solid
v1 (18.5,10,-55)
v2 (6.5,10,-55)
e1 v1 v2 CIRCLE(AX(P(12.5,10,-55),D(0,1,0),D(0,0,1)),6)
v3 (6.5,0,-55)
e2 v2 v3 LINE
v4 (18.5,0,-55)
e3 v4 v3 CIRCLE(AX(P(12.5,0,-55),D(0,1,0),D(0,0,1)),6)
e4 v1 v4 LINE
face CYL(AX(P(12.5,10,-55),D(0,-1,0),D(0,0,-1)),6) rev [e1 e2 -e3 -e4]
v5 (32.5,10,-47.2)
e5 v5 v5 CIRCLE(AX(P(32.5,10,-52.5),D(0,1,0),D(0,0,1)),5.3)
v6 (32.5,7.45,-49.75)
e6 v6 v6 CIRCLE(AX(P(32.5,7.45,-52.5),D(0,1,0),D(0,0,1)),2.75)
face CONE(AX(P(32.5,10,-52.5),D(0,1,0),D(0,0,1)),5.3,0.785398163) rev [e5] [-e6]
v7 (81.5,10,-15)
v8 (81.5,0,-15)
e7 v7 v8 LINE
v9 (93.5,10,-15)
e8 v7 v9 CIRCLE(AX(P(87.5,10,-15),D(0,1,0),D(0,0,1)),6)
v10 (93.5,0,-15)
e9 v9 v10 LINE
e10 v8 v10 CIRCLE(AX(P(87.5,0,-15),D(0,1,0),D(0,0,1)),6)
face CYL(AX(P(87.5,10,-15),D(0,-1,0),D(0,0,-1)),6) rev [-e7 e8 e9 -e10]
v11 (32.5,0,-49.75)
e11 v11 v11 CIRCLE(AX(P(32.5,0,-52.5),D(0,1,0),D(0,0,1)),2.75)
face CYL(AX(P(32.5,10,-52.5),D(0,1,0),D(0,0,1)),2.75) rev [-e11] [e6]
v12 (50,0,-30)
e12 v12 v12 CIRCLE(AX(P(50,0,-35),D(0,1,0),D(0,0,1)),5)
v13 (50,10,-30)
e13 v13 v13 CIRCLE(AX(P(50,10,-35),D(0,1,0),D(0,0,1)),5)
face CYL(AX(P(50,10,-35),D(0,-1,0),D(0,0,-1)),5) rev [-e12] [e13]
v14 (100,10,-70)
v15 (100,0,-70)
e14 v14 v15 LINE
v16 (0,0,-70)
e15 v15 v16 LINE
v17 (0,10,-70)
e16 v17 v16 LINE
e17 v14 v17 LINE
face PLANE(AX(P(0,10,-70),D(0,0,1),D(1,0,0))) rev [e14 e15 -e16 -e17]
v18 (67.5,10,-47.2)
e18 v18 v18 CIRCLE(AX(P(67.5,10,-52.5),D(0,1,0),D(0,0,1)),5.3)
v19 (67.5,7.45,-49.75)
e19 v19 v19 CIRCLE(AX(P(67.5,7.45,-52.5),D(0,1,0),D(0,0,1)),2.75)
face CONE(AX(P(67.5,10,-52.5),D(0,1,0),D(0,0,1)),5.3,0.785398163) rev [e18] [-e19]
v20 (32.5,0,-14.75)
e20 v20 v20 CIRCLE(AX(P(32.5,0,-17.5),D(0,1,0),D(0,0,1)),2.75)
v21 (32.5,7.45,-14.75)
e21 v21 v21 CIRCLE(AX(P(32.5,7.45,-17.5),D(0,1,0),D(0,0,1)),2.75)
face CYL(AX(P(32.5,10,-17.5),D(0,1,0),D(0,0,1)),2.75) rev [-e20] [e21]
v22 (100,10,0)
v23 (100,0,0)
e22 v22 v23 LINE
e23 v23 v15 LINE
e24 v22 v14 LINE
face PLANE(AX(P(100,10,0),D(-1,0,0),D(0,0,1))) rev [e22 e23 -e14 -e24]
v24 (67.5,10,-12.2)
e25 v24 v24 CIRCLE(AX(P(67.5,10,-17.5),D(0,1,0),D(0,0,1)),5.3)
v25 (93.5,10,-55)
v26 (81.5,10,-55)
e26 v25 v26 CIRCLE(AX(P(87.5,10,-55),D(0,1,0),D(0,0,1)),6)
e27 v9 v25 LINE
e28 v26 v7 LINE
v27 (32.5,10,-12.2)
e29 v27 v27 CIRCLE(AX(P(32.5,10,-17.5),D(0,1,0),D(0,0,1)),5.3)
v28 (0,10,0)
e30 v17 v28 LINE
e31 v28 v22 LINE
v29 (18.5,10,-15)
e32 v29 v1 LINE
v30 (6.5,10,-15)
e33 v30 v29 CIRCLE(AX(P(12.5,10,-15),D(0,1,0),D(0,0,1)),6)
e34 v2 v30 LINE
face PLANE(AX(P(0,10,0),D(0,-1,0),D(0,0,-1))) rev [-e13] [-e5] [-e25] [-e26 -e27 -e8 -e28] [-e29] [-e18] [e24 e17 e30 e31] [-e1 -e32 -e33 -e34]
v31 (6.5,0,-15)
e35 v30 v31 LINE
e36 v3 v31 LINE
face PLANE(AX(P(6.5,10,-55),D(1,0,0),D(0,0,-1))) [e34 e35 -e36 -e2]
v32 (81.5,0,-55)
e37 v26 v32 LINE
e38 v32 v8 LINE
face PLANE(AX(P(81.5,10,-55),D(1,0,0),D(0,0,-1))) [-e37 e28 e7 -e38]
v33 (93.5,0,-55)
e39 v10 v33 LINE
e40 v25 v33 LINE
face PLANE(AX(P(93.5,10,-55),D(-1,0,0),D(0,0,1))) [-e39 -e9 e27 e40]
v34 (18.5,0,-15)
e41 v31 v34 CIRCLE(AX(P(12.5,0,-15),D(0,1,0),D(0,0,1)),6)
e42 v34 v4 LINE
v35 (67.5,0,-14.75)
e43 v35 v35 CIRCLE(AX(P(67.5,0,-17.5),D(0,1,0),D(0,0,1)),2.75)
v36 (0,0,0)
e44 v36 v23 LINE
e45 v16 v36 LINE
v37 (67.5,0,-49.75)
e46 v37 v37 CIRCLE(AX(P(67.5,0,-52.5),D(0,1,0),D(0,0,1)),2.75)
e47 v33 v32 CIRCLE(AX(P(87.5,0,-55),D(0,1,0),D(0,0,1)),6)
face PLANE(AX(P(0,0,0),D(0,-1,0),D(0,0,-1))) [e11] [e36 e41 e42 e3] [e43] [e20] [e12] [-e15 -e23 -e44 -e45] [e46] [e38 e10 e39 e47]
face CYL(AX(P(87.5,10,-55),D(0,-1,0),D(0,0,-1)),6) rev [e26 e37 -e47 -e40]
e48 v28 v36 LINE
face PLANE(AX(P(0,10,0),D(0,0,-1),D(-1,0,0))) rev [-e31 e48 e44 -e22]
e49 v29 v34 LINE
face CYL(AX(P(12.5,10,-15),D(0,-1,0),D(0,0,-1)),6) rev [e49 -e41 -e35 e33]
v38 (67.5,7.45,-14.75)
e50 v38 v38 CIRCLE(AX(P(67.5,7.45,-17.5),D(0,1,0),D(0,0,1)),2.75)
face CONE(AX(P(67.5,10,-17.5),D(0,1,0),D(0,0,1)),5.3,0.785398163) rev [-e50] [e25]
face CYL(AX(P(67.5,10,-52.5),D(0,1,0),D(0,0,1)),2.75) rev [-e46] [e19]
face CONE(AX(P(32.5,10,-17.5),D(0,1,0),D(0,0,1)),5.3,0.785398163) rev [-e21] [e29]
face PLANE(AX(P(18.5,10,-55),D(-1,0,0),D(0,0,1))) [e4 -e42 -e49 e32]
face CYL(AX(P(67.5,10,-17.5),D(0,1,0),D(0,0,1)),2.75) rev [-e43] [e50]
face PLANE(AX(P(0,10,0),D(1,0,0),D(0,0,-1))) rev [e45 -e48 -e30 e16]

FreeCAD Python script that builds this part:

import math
import FreeCAD as App
import Part
import Sketcher
Q = App.Units.Quantity

doc = App.newDocument("Part")
body = doc.addObject("PartDesign::Body", "Body")

# Sketch on XZ plane
sketch1 = body.newObject("Sketcher::SketchObject", "Sketch")
sketch1.AttachmentSupport = (doc.getObject("XZ_Plane"), [""])
sketch1.MapMode = "FlatFace"
sketch1.addGeometry(Part.LineSegment(App.Vector(0, -70, 0), App.Vector(0, 0, 0)), False)
sketch1.addGeometry(Part.LineSegment(App.Vector(0, 0, 0), App.Vector(100, 0, 0)), False)
sketch1.addGeometry(Part.LineSegment(App.Vector(100, 0, 0), App.Vector(100, -70, 0)), False)
sketch1.addGeometry(Part.LineSegment(App.Vector(100, -70, 0), App.Vector(0, -70, 0)), False)
sketch1.addGeometry(Part.ArcOfCircle(Part.Circle(App.Vector(12, -55, 0), App.Vector(0, 0, 1), 6), math.radians(180), math.radians(360)), False)
sketch1.addGeometry(Part.LineSegment(App.Vector(18, -55, 0), App.Vector(18, -15, 0)), False)
sketch1.addGeometry(Part.ArcOfCircle(Part.Circle(App.Vector(12, -15, 0), App.Vector(0, 0, 1), 6), math.radians(0), math.radians(180)), False)
sketch1.addGeometry(Part.LineSegment(App.Vector(6, -15, 0), App.Vector(6, -55, 0)), False)
sketch1.addGeometry(Part.Circle(App.Vector(50, -35, 0), App.Vector(0, 0, 1), 5), False)
sketch1.addGeometry(Part.ArcOfCircle(Part.Circle(App.Vector(88, -55, 0), App.Vector(0, 0, 1), 6), math.radians(180), math.radians(360)), False)
sketch1.addGeometry(Part.LineSegment(App.Vector(94, -55, 0), App.Vector(94, -15, 0)), False)
sketch1.addGeometry(Part.ArcOfCircle(Part.Circle(App.Vector(88, -15, 0), App.Vector(0, 0, 1), 6), math.radians(0), math.radians(180)), False)
sketch1.addGeometry(Part.LineSegment(App.Vector(82, -15, 0), App.Vector(82, -55, 0)), False)
sketch1.addConstraint(Sketcher.Constraint("Coincident", 0, 2, 1, 1))
sketch1.addConstraint(Sketcher.Constraint("Coincident", 1, 2, 2, 1))
sketch1.addConstraint(Sketcher.Constraint("Coincident", 2, 2, 3, 1))
sketch1.addConstraint(Sketcher.Constraint("Coincident", 3, 2, 0, 1))
sketch1.addConstraint(Sketcher.Constraint("Tangent", 4, 2, 5, 1))
sketch1.addConstraint(Sketcher.Constraint("Tangent", 5, 2, 6, 1))
sketch1.addConstraint(Sketcher.Constraint("Tangent", 6, 2, 7, 1))
sketch1.addConstraint(Sketcher.Constraint("Tangent", 7, 2, 4, 1))
sketch1.addConstraint(Sketcher.Constraint("Tangent", 9, 2, 10, 1))
sketch1.addConstraint(Sketcher.Constraint("Tangent", 10, 2, 11, 1))
sketch1.addConstraint(Sketcher.Constraint("Tangent", 11, 2, 12, 1))
sketch1.addConstraint(Sketcher.Constraint("Tangent", 12, 2, 9, 1))
sketch1.addConstraint(Sketcher.Constraint("Vertical", 0))
sketch1.addConstraint(Sketcher.Constraint("Horizontal", 1))
sketch1.addConstraint(Sketcher.Constraint("Vertical", 2))
sketch1.addConstraint(Sketcher.Constraint("Horizontal", 3))
sketch1.addConstraint(Sketcher.Constraint("Vertical", 5))
sketch1.addConstraint(Sketcher.Constraint("Vertical", 7))
sketch1.addConstraint(Sketcher.Constraint("Vertical", 10))
sketch1.addConstraint(Sketcher.Constraint("Vertical", 12))
sketch1.addConstraint(Sketcher.Constraint("Coincident", 0, 2, -1, 1))
sketch1.addConstraint(Sketcher.Constraint("Equal", 6, 9))
sketch1.addConstraint(Sketcher.Constraint("Horizontal", 4, 3, 9, 3))
sketch1.addConstraint(Sketcher.Constraint("Horizontal", 6, 3, 11, 3))
sketch1.addConstraint(Sketcher.Constraint("Diameter", 8, Q("10 mm")))
sketch1.addConstraint(Sketcher.Constraint("Radius", 4, Q("6 mm")))
sketch1.addConstraint(Sketcher.Constraint("DistanceX", 1, 1, 1, 2, Q("100 mm")))
sketch1.addConstraint(Sketcher.Constraint("DistanceY", 0, 1, 0, 2, Q("70 mm")))
sketch1.addConstraint(Sketcher.Constraint("DistanceY", 5, 1, 5, 2, Q("40 mm")))
sketch1.addConstraint(Sketcher.Constraint("DistanceY", 4, 3, -1, 1, Q("55 mm")))
sketch1.addConstraint(Sketcher.Constraint("DistanceX", -1, 1, 8, 3, Q("50 mm")))
sketch1.addConstraint(Sketcher.Constraint("DistanceY", 8, 3, -1, 1, Q("35 mm")))
sketch1.addConstraint(Sketcher.Constraint("DistanceX", 4, 3, 9, 3, Q("75 mm")))
sketch1.addConstraint(Sketcher.Constraint("DistanceX", -1, 1, 4, 3, Q("12.5 mm")))
pad1 = body.newObject("PartDesign::Pad", "Pad")
pad1.Profile = sketch1
pad1.Length = 10
pad1.Reversed = True

# Sketch on XZ plane
sketch2 = body.newObject("Sketcher::SketchObject", "Sketch001")
sketch2.AttachmentSupport = (doc.getObject("XZ_Plane"), [""])
sketch2.MapMode = "FlatFace"
sketch2.AttachmentOffset = App.Placement(App.Vector(0, 0, -10), App.Rotation())
sketch2.addGeometry(Part.Circle(App.Vector(32.5, -52.5, 0), App.Vector(0, 0, 1), 2.8), False)
sketch2.addGeometry(Part.Circle(App.Vector(67.5, -52.5, 0), App.Vector(0, 0, 1), 2.8), False)
sketch2.addGeometry(Part.Circle(App.Vector(67.5, -17.5, 0), App.Vector(0, 0, 1), 2.8), False)
sketch2.addGeometry(Part.Circle(App.Vector(32.5, -17.5, 0), App.Vector(0, 0, 1), 2.8), False)
sketch2.addConstraint(Sketcher.Constraint("Equal", 0, 1))
sketch2.addConstraint(Sketcher.Constraint("Equal", 1, 2))
sketch2.addConstraint(Sketcher.Constraint("Equal", 2, 3))
sketch2.addConstraint(Sketcher.Constraint("Horizontal", 0, 3, 1, 3))
sketch2.addConstraint(Sketcher.Constraint("Horizontal", 2, 3, 3, 3))
sketch2.addConstraint(Sketcher.Constraint("Vertical", 1, 3, 2, 3))
sketch2.addConstraint(Sketcher.Constraint("Vertical", 0, 3, 3, 3))
sketch2.addConstraint(Sketcher.Constraint("Diameter", 0, Q("5.5 mm")))
sketch2.addConstraint(Sketcher.Constraint("DistanceX", 0, 3, 1, 3, Q("35 mm")))
sketch2.addConstraint(Sketcher.Constraint("DistanceY", 1, 3, 2, 3, Q("35 mm")))
sketch2.addConstraint(Sketcher.Constraint("DistanceX", -1, 1, 0, 3, Q("32.5 mm")))
sketch2.addConstraint(Sketcher.Constraint("DistanceY", 0, 3, -1, 1, Q("52.5 mm")))
doc.recompute()
hole = body.newObject("PartDesign::Hole", "Hole")
hole.Profile = sketch2
hole.ThreadType = "None"
hole.Diameter = 5.5
hole.DepthType = "ThroughAll"
hole.HoleCutType = "Countersink"
hole.HoleCutDiameter = 10.6
hole.HoleCutCountersinkAngle = 90
hole.Reversed = True

doc.recompute()
